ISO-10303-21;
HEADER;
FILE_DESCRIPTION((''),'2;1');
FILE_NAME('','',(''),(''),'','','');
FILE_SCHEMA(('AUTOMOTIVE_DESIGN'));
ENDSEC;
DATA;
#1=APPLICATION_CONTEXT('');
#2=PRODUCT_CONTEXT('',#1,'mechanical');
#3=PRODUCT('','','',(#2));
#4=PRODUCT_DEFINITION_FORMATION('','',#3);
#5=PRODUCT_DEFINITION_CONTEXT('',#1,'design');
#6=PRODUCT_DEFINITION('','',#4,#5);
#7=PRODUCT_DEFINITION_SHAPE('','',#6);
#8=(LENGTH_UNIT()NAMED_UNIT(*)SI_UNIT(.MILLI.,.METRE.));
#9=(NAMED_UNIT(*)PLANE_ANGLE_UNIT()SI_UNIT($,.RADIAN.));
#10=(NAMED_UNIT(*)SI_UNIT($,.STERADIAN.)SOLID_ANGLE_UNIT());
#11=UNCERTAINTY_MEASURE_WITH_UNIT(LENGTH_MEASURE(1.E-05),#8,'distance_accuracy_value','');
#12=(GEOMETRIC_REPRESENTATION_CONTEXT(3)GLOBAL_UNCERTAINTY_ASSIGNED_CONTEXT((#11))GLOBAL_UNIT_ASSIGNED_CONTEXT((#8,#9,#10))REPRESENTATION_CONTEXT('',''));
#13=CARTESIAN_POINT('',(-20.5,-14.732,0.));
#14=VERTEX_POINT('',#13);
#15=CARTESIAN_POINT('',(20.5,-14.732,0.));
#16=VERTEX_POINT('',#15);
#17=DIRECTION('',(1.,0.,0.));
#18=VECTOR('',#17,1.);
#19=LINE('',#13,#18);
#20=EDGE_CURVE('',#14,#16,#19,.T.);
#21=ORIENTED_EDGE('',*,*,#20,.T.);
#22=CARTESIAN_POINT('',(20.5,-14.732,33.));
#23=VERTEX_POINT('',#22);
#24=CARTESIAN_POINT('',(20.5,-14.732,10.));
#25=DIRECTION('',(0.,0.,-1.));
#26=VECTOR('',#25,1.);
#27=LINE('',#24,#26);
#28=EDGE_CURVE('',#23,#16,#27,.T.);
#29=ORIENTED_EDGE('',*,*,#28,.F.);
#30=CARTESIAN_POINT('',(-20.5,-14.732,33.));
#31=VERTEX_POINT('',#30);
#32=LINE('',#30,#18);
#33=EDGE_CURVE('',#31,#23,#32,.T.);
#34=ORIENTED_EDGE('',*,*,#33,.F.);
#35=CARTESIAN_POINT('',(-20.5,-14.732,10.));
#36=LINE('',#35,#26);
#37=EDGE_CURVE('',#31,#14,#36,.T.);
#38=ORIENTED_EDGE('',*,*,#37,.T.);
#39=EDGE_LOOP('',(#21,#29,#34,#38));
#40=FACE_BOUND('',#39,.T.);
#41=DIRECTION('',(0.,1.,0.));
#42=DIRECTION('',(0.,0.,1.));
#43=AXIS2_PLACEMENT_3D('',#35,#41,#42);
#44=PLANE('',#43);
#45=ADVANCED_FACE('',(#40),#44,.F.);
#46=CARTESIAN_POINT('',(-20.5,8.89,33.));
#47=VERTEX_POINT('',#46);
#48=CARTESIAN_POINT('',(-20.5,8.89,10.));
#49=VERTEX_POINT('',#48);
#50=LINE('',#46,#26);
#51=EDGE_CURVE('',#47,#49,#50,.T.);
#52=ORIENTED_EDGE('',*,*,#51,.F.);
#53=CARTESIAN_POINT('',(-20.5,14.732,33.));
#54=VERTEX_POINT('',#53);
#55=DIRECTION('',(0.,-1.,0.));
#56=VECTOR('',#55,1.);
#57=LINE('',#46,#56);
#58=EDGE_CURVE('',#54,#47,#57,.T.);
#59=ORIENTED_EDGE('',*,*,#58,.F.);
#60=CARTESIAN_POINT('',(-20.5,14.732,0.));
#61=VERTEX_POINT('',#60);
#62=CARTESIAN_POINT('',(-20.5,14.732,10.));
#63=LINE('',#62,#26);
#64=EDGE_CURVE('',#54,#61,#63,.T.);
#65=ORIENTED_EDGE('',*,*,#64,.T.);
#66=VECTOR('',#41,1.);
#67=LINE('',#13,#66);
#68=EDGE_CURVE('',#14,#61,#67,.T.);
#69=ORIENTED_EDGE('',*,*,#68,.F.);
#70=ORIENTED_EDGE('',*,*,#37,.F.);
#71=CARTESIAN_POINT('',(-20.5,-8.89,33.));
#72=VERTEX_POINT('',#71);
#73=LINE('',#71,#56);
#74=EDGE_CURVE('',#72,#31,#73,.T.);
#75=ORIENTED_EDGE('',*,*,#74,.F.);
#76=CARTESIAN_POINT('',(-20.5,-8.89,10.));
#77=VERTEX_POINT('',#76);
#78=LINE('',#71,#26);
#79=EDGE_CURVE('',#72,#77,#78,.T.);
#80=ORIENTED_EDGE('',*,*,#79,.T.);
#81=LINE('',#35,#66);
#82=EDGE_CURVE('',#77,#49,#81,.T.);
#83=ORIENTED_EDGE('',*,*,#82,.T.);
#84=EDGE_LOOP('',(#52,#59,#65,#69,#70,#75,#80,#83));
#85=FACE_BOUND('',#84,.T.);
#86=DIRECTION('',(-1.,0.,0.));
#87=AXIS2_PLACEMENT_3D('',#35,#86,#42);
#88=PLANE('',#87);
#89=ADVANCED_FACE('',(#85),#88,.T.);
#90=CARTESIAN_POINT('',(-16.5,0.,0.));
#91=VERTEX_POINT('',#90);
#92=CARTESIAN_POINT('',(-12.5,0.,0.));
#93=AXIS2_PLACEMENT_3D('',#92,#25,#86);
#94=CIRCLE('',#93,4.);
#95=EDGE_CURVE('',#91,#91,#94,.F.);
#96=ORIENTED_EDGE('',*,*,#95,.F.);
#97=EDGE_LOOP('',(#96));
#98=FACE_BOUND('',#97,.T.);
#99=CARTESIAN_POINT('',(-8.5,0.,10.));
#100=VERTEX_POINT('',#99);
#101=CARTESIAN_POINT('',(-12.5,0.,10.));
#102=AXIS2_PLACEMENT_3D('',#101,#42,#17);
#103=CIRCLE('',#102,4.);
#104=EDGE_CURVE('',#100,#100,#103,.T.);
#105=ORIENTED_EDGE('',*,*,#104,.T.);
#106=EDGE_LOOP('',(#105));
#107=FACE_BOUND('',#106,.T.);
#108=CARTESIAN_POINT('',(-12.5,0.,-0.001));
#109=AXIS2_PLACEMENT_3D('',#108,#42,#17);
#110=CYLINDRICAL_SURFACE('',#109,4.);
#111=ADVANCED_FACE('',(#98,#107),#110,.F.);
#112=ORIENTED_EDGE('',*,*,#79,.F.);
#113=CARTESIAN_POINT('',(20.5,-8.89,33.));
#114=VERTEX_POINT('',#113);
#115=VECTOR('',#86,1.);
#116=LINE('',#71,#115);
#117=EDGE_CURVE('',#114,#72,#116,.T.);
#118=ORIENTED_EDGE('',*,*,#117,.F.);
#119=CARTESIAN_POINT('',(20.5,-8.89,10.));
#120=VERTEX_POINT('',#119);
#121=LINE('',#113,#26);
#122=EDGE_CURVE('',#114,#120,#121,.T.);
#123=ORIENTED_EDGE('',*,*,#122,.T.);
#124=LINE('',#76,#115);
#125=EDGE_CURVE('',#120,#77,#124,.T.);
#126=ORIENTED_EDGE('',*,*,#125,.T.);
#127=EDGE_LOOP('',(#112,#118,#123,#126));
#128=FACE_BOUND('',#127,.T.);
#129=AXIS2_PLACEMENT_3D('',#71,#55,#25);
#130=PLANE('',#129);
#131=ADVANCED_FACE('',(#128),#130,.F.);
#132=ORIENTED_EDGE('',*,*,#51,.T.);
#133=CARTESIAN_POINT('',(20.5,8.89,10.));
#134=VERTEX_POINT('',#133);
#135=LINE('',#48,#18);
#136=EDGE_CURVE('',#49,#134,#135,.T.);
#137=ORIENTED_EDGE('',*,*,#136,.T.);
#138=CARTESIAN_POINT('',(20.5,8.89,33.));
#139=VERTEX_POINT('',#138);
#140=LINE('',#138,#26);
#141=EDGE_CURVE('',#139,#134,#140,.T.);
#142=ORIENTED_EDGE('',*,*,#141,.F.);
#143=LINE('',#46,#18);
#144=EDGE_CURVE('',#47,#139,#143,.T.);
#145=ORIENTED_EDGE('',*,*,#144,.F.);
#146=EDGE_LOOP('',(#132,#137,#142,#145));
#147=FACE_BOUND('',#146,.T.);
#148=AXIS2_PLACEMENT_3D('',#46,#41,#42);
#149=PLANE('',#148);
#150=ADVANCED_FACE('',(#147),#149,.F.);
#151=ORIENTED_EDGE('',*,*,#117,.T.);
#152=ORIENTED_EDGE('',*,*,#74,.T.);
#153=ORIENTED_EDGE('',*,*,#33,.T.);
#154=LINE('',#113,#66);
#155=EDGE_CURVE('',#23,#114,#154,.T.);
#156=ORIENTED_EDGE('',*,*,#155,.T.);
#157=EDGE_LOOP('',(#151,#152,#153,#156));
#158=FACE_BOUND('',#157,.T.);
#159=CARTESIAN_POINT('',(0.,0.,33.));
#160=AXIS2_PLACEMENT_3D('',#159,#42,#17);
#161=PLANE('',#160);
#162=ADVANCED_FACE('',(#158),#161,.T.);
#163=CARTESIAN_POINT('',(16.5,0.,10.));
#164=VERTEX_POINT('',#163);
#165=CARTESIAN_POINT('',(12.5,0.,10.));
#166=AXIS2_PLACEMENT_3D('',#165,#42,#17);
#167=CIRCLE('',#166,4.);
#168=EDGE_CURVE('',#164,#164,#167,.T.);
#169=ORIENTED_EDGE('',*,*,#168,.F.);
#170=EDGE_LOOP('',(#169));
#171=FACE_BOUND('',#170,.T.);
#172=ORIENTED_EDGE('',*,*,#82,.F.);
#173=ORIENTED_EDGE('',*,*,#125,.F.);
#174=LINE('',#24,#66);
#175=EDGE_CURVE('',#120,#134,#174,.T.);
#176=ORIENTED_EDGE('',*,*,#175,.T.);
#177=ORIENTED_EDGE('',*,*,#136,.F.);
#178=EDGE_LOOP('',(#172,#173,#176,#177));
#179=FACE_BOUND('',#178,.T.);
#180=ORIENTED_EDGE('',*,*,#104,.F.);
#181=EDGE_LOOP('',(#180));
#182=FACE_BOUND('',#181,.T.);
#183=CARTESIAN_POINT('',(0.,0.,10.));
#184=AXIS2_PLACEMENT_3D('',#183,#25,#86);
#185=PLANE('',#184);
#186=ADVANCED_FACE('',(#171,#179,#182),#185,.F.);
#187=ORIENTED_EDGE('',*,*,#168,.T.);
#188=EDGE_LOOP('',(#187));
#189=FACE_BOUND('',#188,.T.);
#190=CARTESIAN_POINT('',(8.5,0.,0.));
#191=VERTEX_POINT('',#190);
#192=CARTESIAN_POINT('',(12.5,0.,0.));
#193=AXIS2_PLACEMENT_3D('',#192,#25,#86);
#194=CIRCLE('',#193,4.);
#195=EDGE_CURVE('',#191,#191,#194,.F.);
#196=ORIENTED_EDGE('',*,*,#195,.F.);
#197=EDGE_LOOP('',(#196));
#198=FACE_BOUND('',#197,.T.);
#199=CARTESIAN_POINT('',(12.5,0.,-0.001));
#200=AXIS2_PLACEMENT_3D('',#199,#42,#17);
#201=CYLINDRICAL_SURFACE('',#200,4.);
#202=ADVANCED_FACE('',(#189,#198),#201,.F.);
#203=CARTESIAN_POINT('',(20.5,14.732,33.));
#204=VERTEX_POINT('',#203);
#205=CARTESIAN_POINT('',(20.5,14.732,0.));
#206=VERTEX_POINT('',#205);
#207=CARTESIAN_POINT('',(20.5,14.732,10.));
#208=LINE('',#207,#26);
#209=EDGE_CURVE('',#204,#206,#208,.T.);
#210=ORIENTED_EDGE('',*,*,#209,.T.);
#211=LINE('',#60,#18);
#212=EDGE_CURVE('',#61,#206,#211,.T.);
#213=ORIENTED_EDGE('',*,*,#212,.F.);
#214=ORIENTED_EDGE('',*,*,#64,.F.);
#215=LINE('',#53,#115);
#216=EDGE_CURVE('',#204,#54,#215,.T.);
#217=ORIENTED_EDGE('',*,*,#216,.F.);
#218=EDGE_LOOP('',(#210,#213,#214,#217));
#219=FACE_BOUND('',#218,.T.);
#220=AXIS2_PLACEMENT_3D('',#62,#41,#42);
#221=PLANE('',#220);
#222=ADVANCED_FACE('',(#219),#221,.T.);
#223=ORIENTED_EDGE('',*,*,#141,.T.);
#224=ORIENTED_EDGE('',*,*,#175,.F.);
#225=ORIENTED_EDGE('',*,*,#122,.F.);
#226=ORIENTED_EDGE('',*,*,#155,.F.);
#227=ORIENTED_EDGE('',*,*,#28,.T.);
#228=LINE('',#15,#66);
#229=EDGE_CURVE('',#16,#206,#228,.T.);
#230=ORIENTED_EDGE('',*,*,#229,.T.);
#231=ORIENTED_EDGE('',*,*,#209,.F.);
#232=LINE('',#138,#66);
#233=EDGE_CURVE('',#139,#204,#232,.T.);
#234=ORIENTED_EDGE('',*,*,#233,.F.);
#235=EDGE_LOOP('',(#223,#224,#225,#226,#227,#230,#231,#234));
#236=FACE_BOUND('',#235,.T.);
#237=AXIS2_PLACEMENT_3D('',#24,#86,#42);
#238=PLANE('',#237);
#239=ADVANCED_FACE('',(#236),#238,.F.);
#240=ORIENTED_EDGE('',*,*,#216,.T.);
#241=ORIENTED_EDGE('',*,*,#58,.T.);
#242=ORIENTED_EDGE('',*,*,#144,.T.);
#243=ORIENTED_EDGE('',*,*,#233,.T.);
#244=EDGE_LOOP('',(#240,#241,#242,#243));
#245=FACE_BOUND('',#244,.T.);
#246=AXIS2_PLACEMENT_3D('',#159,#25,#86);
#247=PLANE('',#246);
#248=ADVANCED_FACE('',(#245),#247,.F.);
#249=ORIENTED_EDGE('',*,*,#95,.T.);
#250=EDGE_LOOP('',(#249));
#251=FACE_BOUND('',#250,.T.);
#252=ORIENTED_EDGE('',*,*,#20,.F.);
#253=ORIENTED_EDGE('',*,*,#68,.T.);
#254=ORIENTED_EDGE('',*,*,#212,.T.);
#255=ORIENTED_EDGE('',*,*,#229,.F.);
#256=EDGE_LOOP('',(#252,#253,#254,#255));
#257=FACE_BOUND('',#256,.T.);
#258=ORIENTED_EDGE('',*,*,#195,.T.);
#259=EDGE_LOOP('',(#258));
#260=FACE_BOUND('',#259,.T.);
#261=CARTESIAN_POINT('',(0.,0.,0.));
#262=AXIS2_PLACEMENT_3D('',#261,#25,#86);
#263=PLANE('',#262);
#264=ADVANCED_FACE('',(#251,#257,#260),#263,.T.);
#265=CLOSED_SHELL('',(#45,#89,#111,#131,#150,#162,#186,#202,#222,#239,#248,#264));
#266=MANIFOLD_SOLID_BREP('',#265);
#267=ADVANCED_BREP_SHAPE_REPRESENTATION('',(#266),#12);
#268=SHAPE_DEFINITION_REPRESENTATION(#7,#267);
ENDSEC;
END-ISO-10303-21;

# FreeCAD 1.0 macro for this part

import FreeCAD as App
import Part
import Sketcher
Q = App.Units.Quantity


def add_polygon(sketch, points):
    """Adds a closed chain of lines whose ends are joined by coincident constraints."""
    first, n = sketch.GeometryCount, len(points)
    for a, b in zip(points, points[1:] + points[:1]):
        sketch.addGeometry(Part.LineSegment(App.Vector(*a, 0), App.Vector(*b, 0)), False)
    for i in range(n):
        sketch.addConstraint(Sketcher.Constraint("Coincident", first + i, 2, first + (i + 1) % n, 1))

doc = App.newDocument("Part")
body = doc.addObject("PartDesign::Body", "Body")

# Sketch on XY plane
sketch1 = body.newObject("Sketcher::SketchObject", "Sketch")
sketch1.AttachmentSupport = (doc.getObject("XY_Plane"), [""])
sketch1.MapMode = "FlatFace"
add_polygon(sketch1, [(-20, 15), (-20, -15), (20, -15), (20, 15)])  # lines 0-3
sketch1.addConstraint([
    Sketcher.Constraint("Vertical", 0),
    Sketcher.Constraint("Horizontal", 1),
    Sketcher.Constraint("Vertical", 2),
    Sketcher.Constraint("Horizontal", 3),
    Sketcher.Constraint("Symmetric", 0, 2, 2, 2, -1, 1),
    Sketcher.Constraint("DistanceX", 1, 1, 1, 2, Q("41 mm")),
    Sketcher.Constraint("DistanceY", 0, 2, 0, 1, Q("29.464 mm")),
])
pad1 = body.newObject("PartDesign::Pad", "Pad")
pad1.Profile = sketch1
pad1.Length = 10

# Sketch on XY plane
sketch2 = body.newObject("Sketcher::SketchObject", "Sketch001")
sketch2.AttachmentSupport = (doc.getObject("XY_Plane"), [""])
sketch2.MapMode = "FlatFace"
sketch2.AttachmentOffset = App.Placement(App.Vector(0, 0, 10), App.Rotation())
add_polygon(sketch2, [(-20, 15), (-20, 9), (20, 9), (20, 15)])  # lines 0-3
add_polygon(sketch2, [(-20, -9), (-20, -15), (20, -15), (20, -9)])  # lines 4-7
sketch2.addConstraint([
    Sketcher.Constraint("Vertical", 0),
    Sketcher.Constraint("Horizontal", 1),
    Sketcher.Constraint("Vertical", 2),
    Sketcher.Constraint("Horizontal", 3),
    Sketcher.Constraint("Vertical", 4),
    Sketcher.Constraint("Horizontal", 5),
    Sketcher.Constraint("Vertical", 6),
    Sketcher.Constraint("Horizontal", 7),
    Sketcher.Constraint("Symmetric", 2, 2, 4, 2, -1, 1),
    Sketcher.Constraint("Symmetric", 0, 2, 6, 2, -1, 1),
    Sketcher.Constraint("Vertical", 3, 2, 4, 2),
    Sketcher.Constraint("DistanceX", 1, 1, 1, 2, Q("41 mm")),
    Sketcher.Constraint("DistanceY", 0, 2, 0, 1, Q("5.842 mm")),
    Sketcher.Constraint("DistanceY", -1, 1, 0, 2, Q("8.89 mm")),
])
pad2 = body.newObject("PartDesign::Pad", "Pad001")
pad2.Profile = sketch2
pad2.Length = 23

# Sketch on XY plane
sketch3 = body.newObject("Sketcher::SketchObject", "Sketch002")
sketch3.AttachmentSupport = (doc.getObject("XY_Plane"), [""])
sketch3.MapMode = "FlatFace"
sketch3.AttachmentOffset = App.Placement(App.Vector(0, 0, 10), App.Rotation())
sketch3.addGeometry(Part.Circle(App.Vector(-12.5, 0, 0), App.Vector(0, 0, 1), 4), False)
sketch3.addConstraint([
    Sketcher.Constraint("PointOnObject", 0, 3, -1),
    Sketcher.Constraint("Diameter", 0, Q("8 mm")),
    Sketcher.Constraint("DistanceX", 0, 3, -1, 1, Q("12.5 mm")),
])
pocket1 = body.newObject("PartDesign::Pocket", "Pocket")
pocket1.Profile = sketch3
pocket1.Type = "UpToFirst"

# Sketch on XY plane
sketch4 = body.newObject("Sketcher::SketchObject", "Sketch003")
sketch4.AttachmentSupport = (doc.getObject("XY_Plane"), [""])
sketch4.MapMode = "FlatFace"
sketch4.AttachmentOffset = App.Placement(App.Vector(0, 0, 10), App.Rotation())
sketch4.addGeometry(Part.Circle(App.Vector(12.5, 0, 0), App.Vector(0, 0, 1), 4), False)
sketch4.addConstraint([
    Sketcher.Constraint("PointOnObject", 0, 3, -1),
    Sketcher.Constraint("Diameter", 0, Q("8 mm")),
    Sketcher.Constraint("DistanceX", -1, 1, 0, 3, Q("12.5 mm")),
])
pocket2 = body.newObject("PartDesign::Pocket", "Pocket001")
pocket2.Profile = sketch4
pocket2.Type = "UpToFirst"

doc.recompute()
